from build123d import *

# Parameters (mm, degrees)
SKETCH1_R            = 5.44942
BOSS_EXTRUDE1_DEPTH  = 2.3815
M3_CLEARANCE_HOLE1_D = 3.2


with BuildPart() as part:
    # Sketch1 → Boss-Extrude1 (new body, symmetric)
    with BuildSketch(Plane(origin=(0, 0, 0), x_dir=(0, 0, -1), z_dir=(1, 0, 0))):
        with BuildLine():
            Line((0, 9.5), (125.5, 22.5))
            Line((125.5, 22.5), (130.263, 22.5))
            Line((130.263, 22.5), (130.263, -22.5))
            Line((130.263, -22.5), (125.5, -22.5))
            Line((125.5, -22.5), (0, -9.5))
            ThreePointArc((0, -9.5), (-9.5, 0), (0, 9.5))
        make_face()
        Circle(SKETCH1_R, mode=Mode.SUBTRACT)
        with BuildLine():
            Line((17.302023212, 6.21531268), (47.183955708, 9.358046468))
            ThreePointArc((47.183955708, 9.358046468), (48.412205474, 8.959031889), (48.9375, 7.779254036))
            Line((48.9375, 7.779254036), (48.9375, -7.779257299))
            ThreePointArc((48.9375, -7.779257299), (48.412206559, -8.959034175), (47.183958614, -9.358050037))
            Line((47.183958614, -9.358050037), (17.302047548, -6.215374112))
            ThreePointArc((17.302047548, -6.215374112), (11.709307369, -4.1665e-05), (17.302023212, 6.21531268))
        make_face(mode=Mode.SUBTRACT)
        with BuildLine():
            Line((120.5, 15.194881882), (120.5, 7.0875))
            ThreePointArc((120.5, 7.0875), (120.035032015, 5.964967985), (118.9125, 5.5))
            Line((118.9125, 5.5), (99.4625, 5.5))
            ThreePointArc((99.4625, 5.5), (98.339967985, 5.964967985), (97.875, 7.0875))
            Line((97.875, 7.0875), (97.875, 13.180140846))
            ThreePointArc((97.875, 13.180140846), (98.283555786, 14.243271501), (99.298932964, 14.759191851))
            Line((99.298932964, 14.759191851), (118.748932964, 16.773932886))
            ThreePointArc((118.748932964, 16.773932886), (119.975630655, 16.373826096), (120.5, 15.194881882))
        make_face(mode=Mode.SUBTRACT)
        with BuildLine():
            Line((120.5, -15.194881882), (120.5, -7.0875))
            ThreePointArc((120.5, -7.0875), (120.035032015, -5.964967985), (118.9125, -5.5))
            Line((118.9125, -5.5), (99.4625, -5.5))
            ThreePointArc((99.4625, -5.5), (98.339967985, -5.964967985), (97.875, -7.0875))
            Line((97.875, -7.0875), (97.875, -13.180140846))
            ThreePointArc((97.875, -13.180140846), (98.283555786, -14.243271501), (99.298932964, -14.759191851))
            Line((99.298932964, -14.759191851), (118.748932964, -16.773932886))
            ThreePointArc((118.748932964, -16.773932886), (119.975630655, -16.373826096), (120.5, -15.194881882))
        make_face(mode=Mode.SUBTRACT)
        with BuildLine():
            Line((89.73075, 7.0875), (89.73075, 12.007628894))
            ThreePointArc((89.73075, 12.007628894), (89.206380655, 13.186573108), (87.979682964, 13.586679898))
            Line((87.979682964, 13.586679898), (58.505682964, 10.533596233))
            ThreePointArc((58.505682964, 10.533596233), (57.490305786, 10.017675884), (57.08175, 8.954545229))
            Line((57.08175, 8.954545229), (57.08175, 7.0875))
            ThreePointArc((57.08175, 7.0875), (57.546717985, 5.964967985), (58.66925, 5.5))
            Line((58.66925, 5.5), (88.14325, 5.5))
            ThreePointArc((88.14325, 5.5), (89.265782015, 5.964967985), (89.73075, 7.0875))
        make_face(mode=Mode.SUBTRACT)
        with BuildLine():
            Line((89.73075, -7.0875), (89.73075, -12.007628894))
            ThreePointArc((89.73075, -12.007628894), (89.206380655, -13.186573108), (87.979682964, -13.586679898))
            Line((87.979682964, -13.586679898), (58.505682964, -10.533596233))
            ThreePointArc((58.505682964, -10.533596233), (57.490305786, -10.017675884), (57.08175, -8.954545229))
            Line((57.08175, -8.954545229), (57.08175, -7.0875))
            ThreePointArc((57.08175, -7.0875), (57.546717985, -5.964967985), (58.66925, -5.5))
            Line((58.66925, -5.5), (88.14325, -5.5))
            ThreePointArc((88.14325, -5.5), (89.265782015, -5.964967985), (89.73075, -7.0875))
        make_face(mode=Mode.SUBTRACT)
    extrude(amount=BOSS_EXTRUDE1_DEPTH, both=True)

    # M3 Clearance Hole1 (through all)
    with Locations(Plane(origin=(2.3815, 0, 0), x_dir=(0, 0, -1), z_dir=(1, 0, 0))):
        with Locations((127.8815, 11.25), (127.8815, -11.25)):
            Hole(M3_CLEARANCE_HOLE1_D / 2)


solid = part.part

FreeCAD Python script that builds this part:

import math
import FreeCAD as App
import Part
import Sketcher
from FreeCAD import Vector
Q = App.Units.Quantity

doc = App.newDocument("Part")
body = doc.addObject("PartDesign::Body", "Body")

# Sketch on YZ plane
sketch1 = doc.addObject("Sketcher::SketchObject", "Sketch")
body.addObject(sketch1)
sketch1.AttachmentSupport = (doc.YZ_Plane, [""])
sketch1.MapMode = "FlatFace"
sketch1.addGeometry(Part.LineSegment(Vector(22.5, -125.5, 0), Vector(9.5, 0, 0)), False)
sketch1.addGeometry(Part.ArcOfCircle(Part.Circle(Vector(0, 0, 0), Vector(0, 0, 1), 9.5), math.radians(0), math.radians(180)), False)
sketch1.addGeometry(Part.LineSegment(Vector(-9.5, 0, 0), Vector(-22.5, -125.5, 0)), False)
sketch1.addGeometry(Part.LineSegment(Vector(-22.5, -125.5, 0), Vector(-22.5, -130.263, 0)), False)
sketch1.addGeometry(Part.LineSegment(Vector(-22.5, -130.263, 0), Vector(22.5, -130.263, 0)), False)
sketch1.addGeometry(Part.LineSegment(Vector(22.5, -130.263, 0), Vector(22.5, -125.5, 0)), False)
sketch1.addGeometry(Part.ArcOfCircle(Part.Circle(Vector(-15.194882, -118.9125, 0), Vector(0, 0, 1), 1.5875), math.radians(174.086071), math.radians(270)), False)
sketch1.addGeometry(Part.LineSegment(Vector(-16.773933, -118.748933, 0), Vector(-14.759192, -99.298933, 0)), False)
sketch1.addGeometry(Part.ArcOfCircle(Part.Circle(Vector(-13.180141, -99.4625, 0), Vector(0, 0, 1), 1.5875), math.radians(90), math.radians(174.086071)), False)
sketch1.addGeometry(Part.LineSegment(Vector(-13.180141, -97.875, 0), Vector(-7.0875, -97.875, 0)), False)
sketch1.addGeometry(Part.ArcOfCircle(Part.Circle(Vector(-7.0875, -99.4625, 0), Vector(0, 0, 1), 1.5875), math.radians(0), math.radians(90)), False)
sketch1.addGeometry(Part.LineSegment(Vector(-5.5, -99.4625, 0), Vector(-5.5, -118.9125, 0)), False)
sketch1.addGeometry(Part.ArcOfCircle(Part.Circle(Vector(-7.0875, -118.9125, 0), Vector(0, 0, 1), 1.5875), math.radians(-90), math.radians(0)), False)
sketch1.addGeometry(Part.LineSegment(Vector(-7.0875, -120.5, 0), Vector(-15.194882, -120.5, 0)), False)
sketch1.addGeometry(Part.LineSegment(Vector(-7.0875, -89.73075, 0), Vector(-12.007629, -89.73075, 0)), False)
sketch1.addGeometry(Part.ArcOfCircle(Part.Circle(Vector(-12.007629, -88.14325, 0), Vector(0, 0, 1), 1.5875), math.radians(174.086071), math.radians(270)), False)
sketch1.addGeometry(Part.LineSegment(Vector(-13.58668, -87.979683, 0), Vector(-10.533596, -58.505683, 0)), False)
sketch1.addGeometry(Part.ArcOfCircle(Part.Circle(Vector(-8.954545, -58.66925, 0), Vector(0, 0, 1), 1.5875), math.radians(90), math.radians(174.086071)), False)
sketch1.addGeometry(Part.LineSegment(Vector(-8.954545, -57.08175, 0), Vector(-7.0875, -57.08175, 0)), False)
sketch1.addGeometry(Part.ArcOfCircle(Part.Circle(Vector(-7.0875, -58.66925, 0), Vector(0, 0, 1), 1.5875), math.radians(0), math.radians(90)), False)
sketch1.addGeometry(Part.LineSegment(Vector(-5.5, -58.66925, 0), Vector(-5.5, -88.14325, 0)), False)
sketch1.addGeometry(Part.ArcOfCircle(Part.Circle(Vector(-7.0875, -88.14325, 0), Vector(0, 0, 1), 1.5875), math.radians(-90), math.radians(0)), False)
sketch1.addGeometry(Part.LineSegment(Vector(6.215313, -17.302023, 0), Vector(9.358046, -47.183956, 0)), False)
sketch1.addGeometry(Part.ArcOfCircle(Part.Circle(Vector(7.779254, -47.35, 0), Vector(0, 0, 1), 1.5875), math.radians(-90), math.radians(6.003824)), False)
sketch1.addGeometry(Part.LineSegment(Vector(7.779254, -48.9375, 0), Vector(-7.779257, -48.9375, 0)), False)
sketch1.addGeometry(Part.ArcOfCircle(Part.Circle(Vector(-7.779257, -47.35, 0), Vector(0, 0, 1), 1.5875), math.radians(173.996282), math.radians(270)), False)
sketch1.addGeometry(Part.LineSegment(Vector(-9.35805, -47.183959, 0), Vector(-6.215374, -17.302048, 0)), False)
sketch1.addGeometry(Part.ArcOfCircle(Part.Circle(Vector(-0.000029, -17.959307, 0), Vector(0, 0, 1), 6.25), math.radians(6.0367), math.radians(173.963525)), False)
sketch1.addGeometry(Part.LineSegment(Vector(15.194882, -120.5, 0), Vector(7.0875, -120.5, 0)), False)
sketch1.addGeometry(Part.ArcOfCircle(Part.Circle(Vector(7.0875, -118.9125, 0), Vector(0, 0, 1), 1.5875), math.radians(180), math.radians(270)), False)
sketch1.addGeometry(Part.LineSegment(Vector(5.5, -118.9125, 0), Vector(5.5, -99.4625, 0)), False)
sketch1.addGeometry(Part.ArcOfCircle(Part.Circle(Vector(7.0875, -99.4625, 0), Vector(0, 0, 1), 1.5875), math.radians(90), math.radians(180)), False)
sketch1.addGeometry(Part.LineSegment(Vector(7.0875, -97.875, 0), Vector(13.180141, -97.875, 0)), False)
sketch1.addGeometry(Part.ArcOfCircle(Part.Circle(Vector(13.180141, -99.4625, 0), Vector(0, 0, 1), 1.5875), math.radians(5.913929), math.radians(90)), False)
sketch1.addGeometry(Part.LineSegment(Vector(14.759192, -99.298933, 0), Vector(16.773933, -118.748933, 0)), False)
sketch1.addGeometry(Part.ArcOfCircle(Part.Circle(Vector(15.194882, -118.9125, 0), Vector(0, 0, 1), 1.5875), math.radians(-90), math.radians(5.913929)), False)
sketch1.addGeometry(Part.ArcOfCircle(Part.Circle(Vector(7.0875, -88.14325, 0), Vector(0, 0, 1), 1.5875), math.radians(180), math.radians(270)), False)
sketch1.addGeometry(Part.LineSegment(Vector(5.5, -88.14325, 0), Vector(5.5, -58.66925, 0)), False)
sketch1.addGeometry(Part.ArcOfCircle(Part.Circle(Vector(7.0875, -58.66925, 0), Vector(0, 0, 1), 1.5875), math.radians(90), math.radians(180)), False)
sketch1.addGeometry(Part.LineSegment(Vector(7.0875, -57.08175, 0), Vector(8.954545, -57.08175, 0)), False)
sketch1.addGeometry(Part.ArcOfCircle(Part.Circle(Vector(8.954545, -58.66925, 0), Vector(0, 0, 1), 1.5875), math.radians(5.913929), math.radians(90)), False)
sketch1.addGeometry(Part.LineSegment(Vector(10.533596, -58.505683, 0), Vector(13.58668, -87.979683, 0)), False)
sketch1.addGeometry(Part.ArcOfCircle(Part.Circle(Vector(12.007629, -88.14325, 0), Vector(0, 0, 1), 1.5875), math.radians(-90), math.radians(5.913929)), False)
sketch1.addGeometry(Part.LineSegment(Vector(12.007629, -89.73075, 0), Vector(7.0875, -89.73075, 0)), False)
sketch1.addGeometry(Part.Circle(Vector(0, 0, 0), Vector(0, 0, 1), 5.44942), False)
sketch1.addConstraint(Sketcher.Constraint("Coincident", 0, 2, 1, 1))
sketch1.addConstraint(Sketcher.Constraint("Coincident", 1, 2, 2, 1))
sketch1.addConstraint(Sketcher.Constraint("Coincident", 2, 2, 3, 1))
sketch1.addConstraint(Sketcher.Constraint("Coincident", 3, 2, 4, 1))
sketch1.addConstraint(Sketcher.Constraint("Coincident", 4, 2, 5, 1))
sketch1.addConstraint(Sketcher.Constraint("Coincident", 5, 2, 0, 1))
sketch1.addConstraint(Sketcher.Constraint("Coincident", 6, 1, 7, 1))
sketch1.addConstraint(Sketcher.Constraint("Coincident", 7, 2, 8, 2))
sketch1.addConstraint(Sketcher.Constraint("Coincident", 8, 1, 9, 1))
sketch1.addConstraint(Sketcher.Constraint("Coincident", 9, 2, 10, 2))
sketch1.addConstraint(Sketcher.Constraint("Coincident", 10, 1, 11, 1))
sketch1.addConstraint(Sketcher.Constraint("Coincident", 11, 2, 12, 2))
sketch1.addConstraint(Sketcher.Constraint("Coincident", 12, 1, 13, 1))
sketch1.addConstraint(Sketcher.Constraint("Coincident", 13, 2, 6, 2))
sketch1.addConstraint(Sketcher.Constraint("Coincident", 14, 2, 15, 2))
sketch1.addConstraint(Sketcher.Constraint("Coincident", 15, 1, 16, 1))
sketch1.addConstraint(Sketcher.Constraint("Coincident", 16, 2, 17, 2))
sketch1.addConstraint(Sketcher.Constraint("Coincident", 17, 1, 18, 1))
sketch1.addConstraint(Sketcher.Constraint("Coincident", 18, 2, 19, 2))
sketch1.addConstraint(Sketcher.Constraint("Coincident", 19, 1, 20, 1))
sketch1.addConstraint(Sketcher.Constraint("Coincident", 20, 2, 21, 2))
sketch1.addConstraint(Sketcher.Constraint("Coincident", 21, 1, 14, 1))
sketch1.addConstraint(Sketcher.Constraint("Coincident", 22, 2, 23, 2))
sketch1.addConstraint(Sketcher.Constraint("Coincident", 23, 1, 24, 1))
sketch1.addConstraint(Sketcher.Constraint("Coincident", 24, 2, 25, 2))
sketch1.addConstraint(Sketcher.Constraint("Coincident", 25, 1, 26, 1))
sketch1.addConstraint(Sketcher.Constraint("Coincident", 26, 2, 27, 2))
sketch1.addConstraint(Sketcher.Constraint("Coincident", 27, 1, 22, 1))
sketch1.addConstraint(Sketcher.Constraint("Coincident", 28, 2, 29, 2))
sketch1.addConstraint(Sketcher.Constraint("Coincident", 29, 1, 30, 1))
sketch1.addConstraint(Sketcher.Constraint("Coincident", 30, 2, 31, 2))
sketch1.addConstraint(Sketcher.Constraint("Coincident", 31, 1, 32, 1))
sketch1.addConstraint(Sketcher.Constraint("Coincident", 32, 2, 33, 2))
sketch1.addConstraint(Sketcher.Constraint("Coincident", 33, 1, 34, 1))
sketch1.addConstraint(Sketcher.Constraint("Coincident", 34, 2, 35, 2))
sketch1.addConstraint(Sketcher.Constraint("Coincident", 35, 1, 28, 1))
sketch1.addConstraint(Sketcher.Constraint("Coincident", 36, 1, 37, 1))
sketch1.addConstraint(Sketcher.Constraint("Coincident", 37, 2, 38, 2))
sketch1.addConstraint(Sketcher.Constraint("Coincident", 38, 1, 39, 1))
sketch1.addConstraint(Sketcher.Constraint("Coincident", 39, 2, 40, 2))
sketch1.addConstraint(Sketcher.Constraint("Coincident", 40, 1, 41, 1))
sketch1.addConstraint(Sketcher.Constraint("Coincident", 41, 2, 42, 2))
sketch1.addConstraint(Sketcher.Constraint("Coincident", 42, 1, 43, 1))
sketch1.addConstraint(Sketcher.Constraint("Coincident", 43, 2, 36, 2))
sketch1.addConstraint(Sketcher.Constraint("Vertical", 3))
sketch1.addConstraint(Sketcher.Constraint("Horizontal", 4))
sketch1.addConstraint(Sketcher.Constraint("Vertical", 5))
sketch1.addConstraint(Sketcher.Constraint("Horizontal", 9))
sketch1.addConstraint(Sketcher.Constraint("Vertical", 11))
sketch1.addConstraint(Sketcher.Constraint("Horizontal", 13))
sketch1.addConstraint(Sketcher.Constraint("Horizontal", 14))
sketch1.addConstraint(Sketcher.Constraint("Horizontal", 18))
sketch1.addConstraint(Sketcher.Constraint("Vertical", 20))
sketch1.addConstraint(Sketcher.Constraint("Horizontal", 24))
sketch1.addConstraint(Sketcher.Constraint("Horizontal", 28))
sketch1.addConstraint(Sketcher.Constraint("Vertical", 30))
sketch1.addConstraint(Sketcher.Constraint("Horizontal", 32))
sketch1.addConstraint(Sketcher.Constraint("Vertical", 37))
sketch1.addConstraint(Sketcher.Constraint("Horizontal", 39))
sketch1.addConstraint(Sketcher.Constraint("Horizontal", 43))
sketch1.addConstraint(Sketcher.Constraint("Coincident", 1, 3, -1, 1))
sketch1.addConstraint(Sketcher.Constraint("Coincident", 44, 3, -1, 1))
sketch1.addConstraint(Sketcher.Constraint("PointOnObject", 0, 2, -1))
sketch1.addConstraint(Sketcher.Constraint("PointOnObject", 1, 2, -1))
sketch1.addConstraint(Sketcher.Constraint("Radius", 1, Q("9.5 mm")))
sketch1.addConstraint(Sketcher.Constraint("DistanceX", 4, 1, 4, 2, Q("45 mm")))
sketch1.addConstraint(Sketcher.Constraint("Radius", 27, Q("6.25 mm")))
sketch1.addConstraint(Sketcher.Constraint("DistanceY", 11, 2, 11, 1, Q("19.45 mm")))
sketch1.addConstraint(Sketcher.Constraint("DistanceY", 30, 1, 30, 2, Q("19.45 mm")))
sketch1.addConstraint(Sketcher.Constraint("DistanceX", 2, 2, -1, 1, Q("22.5 mm")))
sketch1.addConstraint(Sketcher.Constraint("DistanceY", 2, 2, -1, 1, Q("125.5 mm")))
sketch1.addConstraint(Sketcher.Constraint("DistanceY", 5, 2, -1, 1, Q("125.5 mm")))
sketch1.addConstraint(Sketcher.Constraint("DistanceX", 10, 1, -1, 1, Q("5.5 mm")))
sketch1.addConstraint(Sketcher.Constraint("DistanceY", 12, 1, -1, 1, Q("120.5 mm")))
sketch1.addConstraint(Sketcher.Constraint("DistanceX", 19, 1, -1, 1, Q("5.5 mm")))
sketch1.addConstraint(Sketcher.Constraint("DistanceY", 28, 2, -1, 1, Q("120.5 mm")))
sketch1.addConstraint(Sketcher.Constraint("DistanceX", -1, 1, 29, 1, Q("5.5 mm")))
sketch1.addConstraint(Sketcher.Constraint("DistanceX", -1, 1, 36, 1, Q("5.5 mm")))
sketch1.addConstraint(Sketcher.Constraint("Radius", 6, Q("1.5875 mm")))
sketch1.addConstraint(Sketcher.Constraint("Radius", 8, Q("1.5875 mm")))
sketch1.addConstraint(Sketcher.Constraint("Radius", 10, Q("1.5875 mm")))
sketch1.addConstraint(Sketcher.Constraint("Radius", 12, Q("1.5875 mm")))
sketch1.addConstraint(Sketcher.Constraint("Radius", 15, Q("1.5875 mm")))
sketch1.addConstraint(Sketcher.Constraint("Radius", 17, Q("1.5875 mm")))
sketch1.addConstraint(Sketcher.Constraint("Radius", 19, Q("1.5875 mm")))
sketch1.addConstraint(Sketcher.Constraint("Radius", 21, Q("1.5875 mm")))
sketch1.addConstraint(Sketcher.Constraint("Radius", 23, Q("1.5875 mm")))
sketch1.addConstraint(Sketcher.Constraint("Radius", 25, Q("1.5875 mm")))
sketch1.addConstraint(Sketcher.Constraint("Radius", 29, Q("1.5875 mm")))
sketch1.addConstraint(Sketcher.Constraint("Radius", 31, Q("1.5875 mm")))
sketch1.addConstraint(Sketcher.Constraint("Radius", 33, Q("1.5875 mm")))
sketch1.addConstraint(Sketcher.Constraint("Radius", 35, Q("1.5875 mm")))
sketch1.addConstraint(Sketcher.Constraint("Radius", 36, Q("1.5875 mm")))
sketch1.addConstraint(Sketcher.Constraint("Radius", 38, Q("1.5875 mm")))
sketch1.addConstraint(Sketcher.Constraint("Radius", 40, Q("1.5875 mm")))
sketch1.addConstraint(Sketcher.Constraint("Radius", 42, Q("1.5875 mm")))
sketch1.addConstraint(Sketcher.Constraint("Diameter", 44, Q("10.89884 mm")))
sketch1.addConstraint(Sketcher.Constraint("DistanceY", 3, 2, 3, 1, Q("4.763 mm")))
sketch1.addConstraint(Sketcher.Constraint("DistanceY", 20, 2, 20, 1, Q("29.474 mm")))
sketch1.addConstraint(Sketcher.Constraint("DistanceY", 37, 1, 37, 2, Q("29.474 mm")))
sketch1.addConstraint(Sketcher.Constraint("DistanceY", 23, 3, -1, 1, Q("47.35 mm")))
sketch1.addConstraint(Sketcher.Constraint("DistanceY", 8, 1, -1, 1, Q("97.875 mm")))
sketch1.addConstraint(Sketcher.Constraint("DistanceY", 31, 1, -1, 1, Q("97.875 mm")))
sketch1.addConstraint(Sketcher.Constraint("DistanceX", 9, 1, 9, 2, Q("6.092641 mm")))
sketch1.addConstraint(Sketcher.Constraint("DistanceX", 13, 2, 13, 1, Q("8.107382 mm")))
sketch1.addConstraint(Sketcher.Constraint("DistanceX", 14, 2, 14, 1, Q("4.920129 mm")))
sketch1.addConstraint(Sketcher.Constraint("DistanceX", 24, 2, 24, 1, Q("15.558511 mm")))
sketch1.addConstraint(Sketcher.Constraint("DistanceX", 28, 2, 28, 1, Q("8.107382 mm")))
sketch1.addConstraint(Sketcher.Constraint("DistanceX", 32, 1, 32, 2, Q("6.092641 mm")))
sketch1.addConstraint(Sketcher.Constraint("DistanceX", 43, 2, 43, 1, Q("4.920129 mm")))
sketch1.addConstraint(Sketcher.Constraint("DistanceX", 9, 2, -1, 1, Q("7.0875 mm")))
sketch1.addConstraint(Sketcher.Constraint("DistanceY", 10, 1, -1, 1, Q("99.4625 mm")))
sketch1.addConstraint(Sketcher.Constraint("DistanceX", 12, 1, -1, 1, Q("7.0875 mm")))
sketch1.addConstraint(Sketcher.Constraint("DistanceX", 18, 2, -1, 1, Q("7.0875 mm")))
sketch1.addConstraint(Sketcher.Constraint("DistanceX", 21, 1, -1, 1, Q("7.0875 mm")))
sketch1.addConstraint(Sketcher.Constraint("DistanceX", -1, 1, 28, 2, Q("7.0875 mm")))
sketch1.addConstraint(Sketcher.Constraint("DistanceY", 29, 1, -1, 1, Q("118.9125 mm")))
sketch1.addConstraint(Sketcher.Constraint("DistanceX", -1, 1, 31, 1, Q("7.0875 mm")))
sketch1.addConstraint(Sketcher.Constraint("DistanceX", -1, 1, 38, 1, Q("7.0875 mm")))
sketch1.addConstraint(Sketcher.Constraint("DistanceX", -1, 1, 43, 2, Q("7.0875 mm")))
sketch1.addConstraint(Sketcher.Constraint("Distance", 7, Q("19.554071 mm")))
sketch1.addConstraint(Sketcher.Constraint("Distance", 22, Q("30.046741 mm")))
sketch1.addConstraint(Sketcher.Constraint("Distance", 34, Q("19.554071 mm")))
sketch1.addConstraint(Sketcher.Constraint("DistanceX", 18, 1, 18, 2, Q("1.867045 mm")))
sketch1.addConstraint(Sketcher.Constraint("DistanceX", 39, 1, 39, 2, Q("1.867045 mm")))
sketch1.addConstraint(Sketcher.Constraint("DistanceX", 6, 3, -1, 1, Q("15.194882 mm")))
sketch1.addConstraint(Sketcher.Constraint("DistanceX", 8, 3, -1, 1, Q("13.180141 mm")))
sketch1.addConstraint(Sketcher.Constraint("DistanceX", 15, 3, -1, 1, Q("12.007629 mm")))
sketch1.addConstraint(Sketcher.Constraint("DistanceY", 15, 3, -1, 1, Q("88.14325 mm")))
sketch1.addConstraint(Sketcher.Constraint("DistanceY", 17, 3, -1, 1, Q("58.66925 mm")))
sketch1.addConstraint(Sketcher.Constraint("DistanceX", -1, 1, 33, 3, Q("13.180141 mm")))
sketch1.addConstraint(Sketcher.Constraint("DistanceX", -1, 1, 35, 3, Q("15.194882 mm")))
sketch1.addConstraint(Sketcher.Constraint("DistanceY", 36, 3, -1, 1, Q("88.14325 mm")))
sketch1.addConstraint(Sketcher.Constraint("DistanceY", 38, 3, -1, 1, Q("58.66925 mm")))
sketch1.addConstraint(Sketcher.Constraint("DistanceX", -1, 1, 42, 3, Q("12.007629 mm")))
sketch1.addConstraint(Sketcher.Constraint("DistanceX", 7, 2, -1, 1, Q("14.759192 mm")))
sketch1.addConstraint(Sketcher.Constraint("DistanceX", 15, 1, -1, 1, Q("13.58668 mm")))
sketch1.addConstraint(Sketcher.Constraint("DistanceY", 19, 1, -1, 1, Q("58.66925 mm")))
sketch1.addConstraint(Sketcher.Constraint("DistanceX", 25, 1, -1, 1, Q("9.35805 mm")))
sketch1.addConstraint(Sketcher.Constraint("DistanceY", 25, 1, -1, 1, Q("47.183959 mm")))
sketch1.addConstraint(Sketcher.Constraint("DistanceX", -1, 1, 33, 1, Q("14.759192 mm")))
sketch1.addConstraint(Sketcher.Constraint("DistanceY", 36, 1, -1, 1, Q("88.14325 mm")))
sketch1.addConstraint(Sketcher.Constraint("DistanceX", -1, 1, 41, 2, Q("13.58668 mm")))
sketch1.addConstraint(Sketcher.Constraint("Distance", 16, Q("29.631706 mm")))
sketch1.addConstraint(Sketcher.Constraint("Distance", 26, Q("30.046714 mm")))
sketch1.addConstraint(Sketcher.Constraint("Distance", 41, Q("29.631706 mm")))
sketch1.addConstraint(Sketcher.Constraint("DistanceX", 17, 3, -1, 1, Q("8.954545 mm")))
sketch1.addConstraint(Sketcher.Constraint("DistanceX", -1, 1, 23, 3, Q("7.779254 mm")))
sketch1.addConstraint(Sketcher.Constraint("DistanceY", 27, 3, -1, 1, Q("17.959307 mm")))
sketch1.addConstraint(Sketcher.Constraint("DistanceX", -1, 1, 40, 3, Q("8.954545 mm")))
sketch1.addConstraint(Sketcher.Constraint("DistanceX", -1, 1, 22, 2, Q("9.358046 mm")))
sketch1.addConstraint(Sketcher.Constraint("DistanceX", -1, 1, 23, 1, Q("7.779254 mm")))
sketch1.addConstraint(Sketcher.Constraint("DistanceX", 26, 2, -1, 1, Q("6.215374 mm")))
pad1 = doc.addObject("PartDesign::Pad", "Pad")
body.addObject(pad1)
pad1.Profile = sketch1
pad1.Length = 4.763
pad1.Midplane = True

# Sketch on YZ plane
sketch2 = doc.addObject("Sketcher::SketchObject", "Sketch001")
body.addObject(sketch2)
sketch2.AttachmentSupport = (doc.YZ_Plane, [""])
sketch2.MapMode = "FlatFace"
sketch2.AttachmentOffset = App.Placement(Vector(0, 0, 2.3815), App.Rotation())
sketch2.addGeometry(Part.Circle(Vector(11.2, -127.9, 0), Vector(0, 0, 1), 1.6), False)
sketch2.addGeometry(Part.Circle(Vector(-11.2, -127.9, 0), Vector(0, 0, 1), 1.6), False)
sketch2.addConstraint(Sketcher.Constraint("Equal", 0, 1))
sketch2.addConstraint(Sketcher.Constraint("Symmetric", 0, 3, 1, 3, -2))
sketch2.addConstraint(Sketcher.Constraint("Diameter", 0, Q("3.2 mm")))
sketch2.addConstraint(Sketcher.Constraint("DistanceX", 1, 3, 0, 3, Q("22.5 mm")))
sketch2.addConstraint(Sketcher.Constraint("DistanceY", 0, 3, -1, 1, Q("127.8815 mm")))
doc.recompute()
hole = doc.addObject("PartDesign::Hole", "Hole")
body.addObject(hole)
hole.Profile = sketch2
hole.ThreadType = "None"
hole.Diameter = 3.2
hole.DepthType = "ThroughAll"

doc.recompute()
